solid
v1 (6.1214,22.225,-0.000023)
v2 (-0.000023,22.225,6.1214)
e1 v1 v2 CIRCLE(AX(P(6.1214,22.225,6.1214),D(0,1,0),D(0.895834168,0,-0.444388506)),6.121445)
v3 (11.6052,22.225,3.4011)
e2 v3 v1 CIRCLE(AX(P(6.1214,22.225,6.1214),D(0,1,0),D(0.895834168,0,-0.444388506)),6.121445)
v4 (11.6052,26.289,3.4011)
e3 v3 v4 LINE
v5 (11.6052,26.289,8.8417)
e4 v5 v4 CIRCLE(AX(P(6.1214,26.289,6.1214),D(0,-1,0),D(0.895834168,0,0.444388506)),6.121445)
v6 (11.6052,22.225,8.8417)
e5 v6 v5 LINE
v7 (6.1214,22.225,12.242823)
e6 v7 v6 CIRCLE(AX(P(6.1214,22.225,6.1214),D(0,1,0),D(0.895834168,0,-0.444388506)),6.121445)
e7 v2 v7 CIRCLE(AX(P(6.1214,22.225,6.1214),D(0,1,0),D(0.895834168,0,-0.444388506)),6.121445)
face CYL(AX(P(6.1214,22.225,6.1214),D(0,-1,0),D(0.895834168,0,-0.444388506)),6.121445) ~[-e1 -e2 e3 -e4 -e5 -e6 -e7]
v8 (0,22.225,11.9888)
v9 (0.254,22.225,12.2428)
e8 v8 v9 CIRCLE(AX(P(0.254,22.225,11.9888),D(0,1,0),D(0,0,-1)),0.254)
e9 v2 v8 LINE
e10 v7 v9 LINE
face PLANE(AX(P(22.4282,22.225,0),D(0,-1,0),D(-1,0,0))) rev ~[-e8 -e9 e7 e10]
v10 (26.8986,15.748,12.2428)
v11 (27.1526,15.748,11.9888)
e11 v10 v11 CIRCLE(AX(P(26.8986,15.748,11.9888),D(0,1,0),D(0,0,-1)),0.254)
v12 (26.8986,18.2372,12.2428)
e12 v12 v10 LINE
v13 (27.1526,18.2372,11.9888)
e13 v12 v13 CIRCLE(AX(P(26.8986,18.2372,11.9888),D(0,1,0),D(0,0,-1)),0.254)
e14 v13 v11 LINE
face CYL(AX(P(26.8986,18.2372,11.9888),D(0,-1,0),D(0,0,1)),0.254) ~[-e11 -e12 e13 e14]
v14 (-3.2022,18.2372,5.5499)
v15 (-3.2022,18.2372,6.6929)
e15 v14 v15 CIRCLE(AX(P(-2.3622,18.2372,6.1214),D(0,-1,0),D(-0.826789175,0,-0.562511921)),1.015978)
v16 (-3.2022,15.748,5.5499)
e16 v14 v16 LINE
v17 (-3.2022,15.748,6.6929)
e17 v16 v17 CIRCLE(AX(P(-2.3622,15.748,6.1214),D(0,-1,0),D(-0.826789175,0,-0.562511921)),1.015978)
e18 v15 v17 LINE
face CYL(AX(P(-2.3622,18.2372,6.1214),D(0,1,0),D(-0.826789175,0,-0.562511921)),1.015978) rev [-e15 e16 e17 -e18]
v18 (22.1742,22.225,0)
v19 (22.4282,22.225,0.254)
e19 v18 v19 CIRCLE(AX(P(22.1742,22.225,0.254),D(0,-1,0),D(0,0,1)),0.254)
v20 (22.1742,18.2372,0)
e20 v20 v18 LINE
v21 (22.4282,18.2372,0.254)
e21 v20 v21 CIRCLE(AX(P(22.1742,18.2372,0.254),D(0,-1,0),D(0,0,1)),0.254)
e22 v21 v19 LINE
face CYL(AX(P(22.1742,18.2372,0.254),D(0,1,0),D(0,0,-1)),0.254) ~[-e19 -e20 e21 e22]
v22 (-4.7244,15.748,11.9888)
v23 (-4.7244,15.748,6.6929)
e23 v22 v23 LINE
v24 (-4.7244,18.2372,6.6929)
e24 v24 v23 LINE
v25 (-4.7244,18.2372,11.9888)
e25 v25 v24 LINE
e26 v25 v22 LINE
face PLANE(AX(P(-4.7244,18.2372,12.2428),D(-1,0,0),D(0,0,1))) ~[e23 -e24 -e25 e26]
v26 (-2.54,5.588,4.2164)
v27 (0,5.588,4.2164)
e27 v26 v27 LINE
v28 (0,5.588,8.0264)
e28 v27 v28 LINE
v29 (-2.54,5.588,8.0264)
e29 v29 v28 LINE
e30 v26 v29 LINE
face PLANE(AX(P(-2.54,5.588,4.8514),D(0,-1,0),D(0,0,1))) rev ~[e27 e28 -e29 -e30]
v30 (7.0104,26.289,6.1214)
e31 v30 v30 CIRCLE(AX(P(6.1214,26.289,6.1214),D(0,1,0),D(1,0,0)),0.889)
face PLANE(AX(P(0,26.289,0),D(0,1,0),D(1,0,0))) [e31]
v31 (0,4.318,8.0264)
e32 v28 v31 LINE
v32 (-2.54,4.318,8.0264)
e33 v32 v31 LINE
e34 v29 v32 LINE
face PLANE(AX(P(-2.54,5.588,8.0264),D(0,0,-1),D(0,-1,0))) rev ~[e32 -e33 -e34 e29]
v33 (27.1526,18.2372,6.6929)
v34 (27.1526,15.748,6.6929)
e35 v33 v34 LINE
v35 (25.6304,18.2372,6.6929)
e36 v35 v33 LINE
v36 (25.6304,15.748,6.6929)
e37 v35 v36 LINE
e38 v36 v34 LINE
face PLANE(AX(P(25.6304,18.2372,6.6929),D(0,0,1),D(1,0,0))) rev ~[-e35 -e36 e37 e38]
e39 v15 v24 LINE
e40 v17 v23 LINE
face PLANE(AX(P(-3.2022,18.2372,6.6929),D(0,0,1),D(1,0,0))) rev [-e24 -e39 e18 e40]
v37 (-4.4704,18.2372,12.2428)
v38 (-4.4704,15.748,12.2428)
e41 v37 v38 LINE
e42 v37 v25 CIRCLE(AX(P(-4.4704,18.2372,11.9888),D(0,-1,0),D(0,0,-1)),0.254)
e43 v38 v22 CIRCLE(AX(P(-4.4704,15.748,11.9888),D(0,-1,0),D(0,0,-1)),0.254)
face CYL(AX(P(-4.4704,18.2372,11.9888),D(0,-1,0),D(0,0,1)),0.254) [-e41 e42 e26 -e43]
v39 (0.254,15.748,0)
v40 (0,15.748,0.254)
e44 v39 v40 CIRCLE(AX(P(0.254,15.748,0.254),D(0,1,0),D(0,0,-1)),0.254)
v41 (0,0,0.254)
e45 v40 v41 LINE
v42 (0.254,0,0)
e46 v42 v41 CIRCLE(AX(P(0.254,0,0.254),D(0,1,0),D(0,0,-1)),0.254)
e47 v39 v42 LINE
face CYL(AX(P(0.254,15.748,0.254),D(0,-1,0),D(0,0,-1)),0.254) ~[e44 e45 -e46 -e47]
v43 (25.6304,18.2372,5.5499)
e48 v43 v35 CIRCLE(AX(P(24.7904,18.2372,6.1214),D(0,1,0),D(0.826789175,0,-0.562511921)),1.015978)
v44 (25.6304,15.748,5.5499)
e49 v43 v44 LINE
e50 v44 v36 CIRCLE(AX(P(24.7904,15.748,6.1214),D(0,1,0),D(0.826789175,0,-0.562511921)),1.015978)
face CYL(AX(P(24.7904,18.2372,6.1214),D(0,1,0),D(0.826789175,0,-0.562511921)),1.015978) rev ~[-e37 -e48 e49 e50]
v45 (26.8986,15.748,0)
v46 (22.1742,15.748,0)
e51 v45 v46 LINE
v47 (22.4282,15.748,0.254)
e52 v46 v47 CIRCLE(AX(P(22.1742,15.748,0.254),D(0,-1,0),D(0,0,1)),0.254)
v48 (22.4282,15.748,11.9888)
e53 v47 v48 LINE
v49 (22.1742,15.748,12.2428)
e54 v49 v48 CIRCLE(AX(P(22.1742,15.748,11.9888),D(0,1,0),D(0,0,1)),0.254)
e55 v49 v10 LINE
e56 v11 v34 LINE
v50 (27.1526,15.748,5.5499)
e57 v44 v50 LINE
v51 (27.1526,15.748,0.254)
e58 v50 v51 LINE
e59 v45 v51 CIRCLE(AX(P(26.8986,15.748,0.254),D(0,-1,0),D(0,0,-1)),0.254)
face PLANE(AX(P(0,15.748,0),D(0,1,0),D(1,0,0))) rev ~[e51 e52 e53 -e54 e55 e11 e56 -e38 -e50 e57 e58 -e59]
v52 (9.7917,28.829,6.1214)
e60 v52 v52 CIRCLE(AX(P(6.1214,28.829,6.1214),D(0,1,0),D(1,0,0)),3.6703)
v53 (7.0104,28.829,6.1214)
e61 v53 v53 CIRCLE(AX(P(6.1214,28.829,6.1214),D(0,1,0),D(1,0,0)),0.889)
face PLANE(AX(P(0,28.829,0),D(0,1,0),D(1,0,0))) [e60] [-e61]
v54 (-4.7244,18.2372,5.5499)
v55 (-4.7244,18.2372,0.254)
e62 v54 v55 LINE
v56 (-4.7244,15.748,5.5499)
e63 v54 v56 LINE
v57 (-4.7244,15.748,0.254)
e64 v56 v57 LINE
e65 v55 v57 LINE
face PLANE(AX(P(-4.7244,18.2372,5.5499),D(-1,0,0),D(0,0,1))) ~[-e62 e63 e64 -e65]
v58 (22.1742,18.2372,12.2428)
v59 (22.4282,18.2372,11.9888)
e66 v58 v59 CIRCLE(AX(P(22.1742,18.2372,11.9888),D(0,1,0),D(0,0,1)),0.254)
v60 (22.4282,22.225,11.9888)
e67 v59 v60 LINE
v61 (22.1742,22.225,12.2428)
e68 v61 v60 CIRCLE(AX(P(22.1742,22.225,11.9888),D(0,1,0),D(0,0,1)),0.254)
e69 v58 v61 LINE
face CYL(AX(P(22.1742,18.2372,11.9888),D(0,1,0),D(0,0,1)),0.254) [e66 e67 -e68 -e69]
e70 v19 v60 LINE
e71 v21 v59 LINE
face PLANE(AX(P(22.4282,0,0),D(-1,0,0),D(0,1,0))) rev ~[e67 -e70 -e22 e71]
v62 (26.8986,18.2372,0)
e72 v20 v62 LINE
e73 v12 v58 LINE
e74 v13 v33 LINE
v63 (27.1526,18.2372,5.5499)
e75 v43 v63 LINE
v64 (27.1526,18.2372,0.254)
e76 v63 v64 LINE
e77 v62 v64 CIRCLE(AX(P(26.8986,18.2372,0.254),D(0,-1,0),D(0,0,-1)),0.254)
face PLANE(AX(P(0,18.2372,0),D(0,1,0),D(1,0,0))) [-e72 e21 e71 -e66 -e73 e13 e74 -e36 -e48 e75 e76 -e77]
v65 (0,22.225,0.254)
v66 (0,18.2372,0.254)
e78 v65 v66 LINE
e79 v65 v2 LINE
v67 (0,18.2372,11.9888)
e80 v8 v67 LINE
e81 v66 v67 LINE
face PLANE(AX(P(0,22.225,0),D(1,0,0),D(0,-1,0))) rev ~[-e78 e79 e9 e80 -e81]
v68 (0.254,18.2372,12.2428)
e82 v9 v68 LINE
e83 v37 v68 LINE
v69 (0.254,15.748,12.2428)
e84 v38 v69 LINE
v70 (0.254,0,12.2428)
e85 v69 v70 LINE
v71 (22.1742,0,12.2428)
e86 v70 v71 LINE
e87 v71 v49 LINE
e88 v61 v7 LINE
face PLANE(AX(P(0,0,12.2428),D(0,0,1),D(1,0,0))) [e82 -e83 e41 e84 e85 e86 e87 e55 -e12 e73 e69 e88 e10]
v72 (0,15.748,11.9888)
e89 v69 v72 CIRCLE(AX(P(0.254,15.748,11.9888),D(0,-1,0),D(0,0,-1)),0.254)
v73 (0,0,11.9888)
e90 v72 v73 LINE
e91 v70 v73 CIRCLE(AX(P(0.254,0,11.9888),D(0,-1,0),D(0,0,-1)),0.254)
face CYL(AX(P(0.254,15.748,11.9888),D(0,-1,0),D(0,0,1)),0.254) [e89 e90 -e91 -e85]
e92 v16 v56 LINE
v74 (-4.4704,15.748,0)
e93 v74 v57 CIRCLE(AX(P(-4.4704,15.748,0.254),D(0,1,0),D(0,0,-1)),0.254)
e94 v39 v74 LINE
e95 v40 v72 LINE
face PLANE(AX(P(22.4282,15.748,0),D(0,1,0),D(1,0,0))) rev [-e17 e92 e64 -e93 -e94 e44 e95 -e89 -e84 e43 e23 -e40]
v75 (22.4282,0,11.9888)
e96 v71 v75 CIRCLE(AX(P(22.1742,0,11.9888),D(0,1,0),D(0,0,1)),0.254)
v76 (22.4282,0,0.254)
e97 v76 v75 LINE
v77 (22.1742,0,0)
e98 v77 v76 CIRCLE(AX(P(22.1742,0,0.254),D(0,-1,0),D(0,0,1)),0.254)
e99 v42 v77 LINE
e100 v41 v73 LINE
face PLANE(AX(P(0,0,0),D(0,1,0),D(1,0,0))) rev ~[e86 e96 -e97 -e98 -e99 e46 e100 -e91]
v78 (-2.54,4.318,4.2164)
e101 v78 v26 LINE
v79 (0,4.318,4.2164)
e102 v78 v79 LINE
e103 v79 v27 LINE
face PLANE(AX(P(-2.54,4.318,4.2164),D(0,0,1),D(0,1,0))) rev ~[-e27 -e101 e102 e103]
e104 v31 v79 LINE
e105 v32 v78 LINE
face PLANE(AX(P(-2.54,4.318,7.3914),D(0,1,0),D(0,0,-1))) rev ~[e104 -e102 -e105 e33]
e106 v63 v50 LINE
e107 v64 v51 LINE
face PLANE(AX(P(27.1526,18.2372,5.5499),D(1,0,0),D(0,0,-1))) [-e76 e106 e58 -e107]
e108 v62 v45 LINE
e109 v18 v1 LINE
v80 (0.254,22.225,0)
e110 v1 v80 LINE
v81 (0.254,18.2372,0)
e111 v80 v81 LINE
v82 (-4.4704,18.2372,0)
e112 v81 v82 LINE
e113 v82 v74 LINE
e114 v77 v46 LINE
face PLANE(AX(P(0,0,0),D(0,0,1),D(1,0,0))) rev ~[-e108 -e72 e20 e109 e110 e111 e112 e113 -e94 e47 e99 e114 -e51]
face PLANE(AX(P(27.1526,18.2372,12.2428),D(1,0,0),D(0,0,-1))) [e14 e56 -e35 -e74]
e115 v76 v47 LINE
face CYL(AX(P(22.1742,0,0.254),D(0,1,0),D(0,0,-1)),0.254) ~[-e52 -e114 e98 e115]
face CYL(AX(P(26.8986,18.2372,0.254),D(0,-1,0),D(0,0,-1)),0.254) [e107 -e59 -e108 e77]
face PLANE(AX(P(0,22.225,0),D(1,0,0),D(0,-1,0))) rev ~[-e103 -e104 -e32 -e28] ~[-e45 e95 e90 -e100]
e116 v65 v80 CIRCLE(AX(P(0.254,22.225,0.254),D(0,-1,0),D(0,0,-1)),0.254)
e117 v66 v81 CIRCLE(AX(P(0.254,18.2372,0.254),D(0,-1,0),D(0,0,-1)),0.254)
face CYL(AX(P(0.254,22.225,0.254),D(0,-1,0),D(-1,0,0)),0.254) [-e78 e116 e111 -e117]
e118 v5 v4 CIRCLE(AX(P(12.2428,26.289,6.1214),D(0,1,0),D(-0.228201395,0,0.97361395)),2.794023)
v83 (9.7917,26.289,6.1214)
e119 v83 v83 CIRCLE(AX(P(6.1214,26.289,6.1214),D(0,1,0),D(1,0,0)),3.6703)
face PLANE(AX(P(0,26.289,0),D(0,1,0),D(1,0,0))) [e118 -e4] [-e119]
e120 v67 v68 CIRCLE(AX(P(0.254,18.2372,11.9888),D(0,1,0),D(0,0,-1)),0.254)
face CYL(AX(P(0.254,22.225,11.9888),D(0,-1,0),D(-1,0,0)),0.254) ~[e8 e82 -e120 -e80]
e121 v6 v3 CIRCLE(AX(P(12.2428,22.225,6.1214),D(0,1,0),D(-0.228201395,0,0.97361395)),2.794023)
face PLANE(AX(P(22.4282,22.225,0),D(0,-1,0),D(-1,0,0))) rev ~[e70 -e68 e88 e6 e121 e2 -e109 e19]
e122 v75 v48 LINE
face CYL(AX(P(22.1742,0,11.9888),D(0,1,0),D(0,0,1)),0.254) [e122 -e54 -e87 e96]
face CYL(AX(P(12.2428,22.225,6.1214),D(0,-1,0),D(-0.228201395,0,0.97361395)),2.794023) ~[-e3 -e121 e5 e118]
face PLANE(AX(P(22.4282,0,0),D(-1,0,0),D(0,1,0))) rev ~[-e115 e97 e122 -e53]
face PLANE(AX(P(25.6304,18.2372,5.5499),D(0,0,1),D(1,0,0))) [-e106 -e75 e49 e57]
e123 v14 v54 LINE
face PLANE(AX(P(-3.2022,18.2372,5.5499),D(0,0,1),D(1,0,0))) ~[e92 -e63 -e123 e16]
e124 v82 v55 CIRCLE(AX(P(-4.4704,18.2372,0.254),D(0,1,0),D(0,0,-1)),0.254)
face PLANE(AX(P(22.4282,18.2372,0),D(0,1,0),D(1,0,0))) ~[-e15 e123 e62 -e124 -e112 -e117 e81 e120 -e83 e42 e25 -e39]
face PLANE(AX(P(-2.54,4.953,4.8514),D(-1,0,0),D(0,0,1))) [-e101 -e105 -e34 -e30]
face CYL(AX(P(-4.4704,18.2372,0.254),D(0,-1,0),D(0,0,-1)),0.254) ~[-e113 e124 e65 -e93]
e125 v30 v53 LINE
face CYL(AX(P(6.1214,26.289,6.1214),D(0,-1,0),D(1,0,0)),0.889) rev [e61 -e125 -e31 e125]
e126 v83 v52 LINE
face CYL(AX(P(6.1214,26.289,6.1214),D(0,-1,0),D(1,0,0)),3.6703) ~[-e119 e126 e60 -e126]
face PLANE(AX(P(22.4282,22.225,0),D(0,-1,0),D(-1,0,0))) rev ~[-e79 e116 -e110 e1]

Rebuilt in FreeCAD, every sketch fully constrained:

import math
import FreeCAD as App
import Part
import Sketcher
Q = App.Units.Quantity


def edges_at(feature, points):
    """Names of the edges that pass closest to the given points."""
    edges = feature.Shape.Edges
    near = lambda p: min(range(len(edges)), key=lambda i: edges[i].distToShape(Part.Vertex(*p))[0])
    return sorted({f"Edge{near(p) + 1}" for p in points})


def add_polygon(sketch, points):
    """Adds a closed chain of lines whose ends are joined by coincident constraints."""
    first, n = sketch.GeometryCount, len(points)
    for a, b in zip(points, points[1:] + points[:1]):
        sketch.addGeometry(Part.LineSegment(App.Vector(*a, 0), App.Vector(*b, 0)), False)
    for i in range(n):
        sketch.addConstraint(Sketcher.Constraint("Coincident", first + i, 2, first + (i + 1) % n, 1))

doc = App.newDocument("Part")
body = doc.addObject("PartDesign::Body", "Body")

sketch1 = body.newObject("Sketcher::SketchObject", "Sketch")
sketch1.AttachmentSupport = (doc.getObject("XY_Plane"), [""])
sketch1.MapMode = "FlatFace"
add_polygon(sketch1, [(0, 22.225), (0, 0), (22.4282, 0), (22.4282, 22.225)])
sketch1.addConstraint([
    Sketcher.Constraint("Vertical", 0),
    Sketcher.Constraint("Horizontal", 1),
    Sketcher.Constraint("Vertical", 2),
    Sketcher.Constraint("Horizontal", 3),
    Sketcher.Constraint("Coincident", 0, 2, -1, 1),
    Sketcher.Constraint("DistanceX", 1, 1, 1, 2, Q("0.883 in")),
    Sketcher.Constraint("DistanceY", 0, 2, 0, 1, Q("0.875 in")),
])
pad1 = body.newObject("PartDesign::Pad", "Pad")
pad1.Profile = sketch1
pad1.Length = Q("0.482 in")

sketch2 = body.newObject("Sketcher::SketchObject", "Sketch001")
sketch2.AttachmentSupport = (doc.getObject("XZ_Plane"), [""])
sketch2.MapMode = "FlatFace"
sketch2.AttachmentOffset = App.Placement(App.Vector(0, 0, -0.718 * 25.4), App.Rotation())
sketch2.addGeometry([
    Part.LineSegment(App.Vector(22.4282, 0, 0), App.Vector(22.4282, 12.2428, 0)),
    Part.LineSegment(App.Vector(22.4282, 12.2428, 0), App.Vector(27.1526, 12.2428, 0)),
    Part.LineSegment(App.Vector(27.1526, 12.2428, 0), App.Vector(27.1526, 6.6929, 0)),
    Part.LineSegment(App.Vector(27.1526, 6.6929, 0), App.Vector(25.6304, 6.6929, 0)),
    Part.ArcOfCircle(Part.Circle(App.Vector(24.7904, 6.1214, 0), App.Vector(0, 0, 1), 1.015978), math.radians(34.229692), math.radians(325.770308)),
    Part.LineSegment(App.Vector(25.6304, 5.5499, 0), App.Vector(27.1526, 5.5499, 0)),
    Part.LineSegment(App.Vector(27.1526, 5.5499, 0), App.Vector(27.1526, 0, 0)),
    Part.LineSegment(App.Vector(27.1526, 0, 0), App.Vector(22.4282, 0, 0)),
], False)
sketch2.addConstraint([
    Sketcher.Constraint("Coincident", 0, 2, 1, 1),
    Sketcher.Constraint("Coincident", 1, 2, 2, 1),
    Sketcher.Constraint("Coincident", 2, 2, 3, 1),
    Sketcher.Constraint("Coincident", 3, 2, 4, 1),
    Sketcher.Constraint("Coincident", 4, 2, 5, 1),
    Sketcher.Constraint("Coincident", 5, 2, 6, 1),
    Sketcher.Constraint("Coincident", 6, 2, 7, 1),
    Sketcher.Constraint("Coincident", 7, 2, 0, 1),
    Sketcher.Constraint("Vertical", 0),
    Sketcher.Constraint("Horizontal", 1),
    Sketcher.Constraint("Vertical", 2),
    Sketcher.Constraint("Horizontal", 3),
    Sketcher.Constraint("Horizontal", 5),
    Sketcher.Constraint("Vertical", 6),
    Sketcher.Constraint("Horizontal", 7),
    Sketcher.Constraint("PointOnObject", 6, 2, -1),
    Sketcher.Constraint("Vertical", 3, 2, 4, 2),
    Sketcher.Constraint("Vertical", 2, 2, 5, 2),
    Sketcher.Constraint("Equal", 2, 6),
    Sketcher.Constraint("Radius", 4, Q("0.04 in")),
    Sketcher.Constraint("DistanceX", 1, 1, 1, 2, Q("0.186 in")),
    Sketcher.Constraint("DistanceY", 4, 2, 3, 2, Q("0.045 in")),
    Sketcher.Constraint("DistanceY", 0, 1, 0, 2, Q("0.482 in")),
    Sketcher.Constraint("DistanceX", -1, 1, 4, 3, Q("0.976 in")),
    Sketcher.Constraint("DistanceX", -1, 1, 0, 2, Q("0.883 in")),
])
pad2 = body.newObject("PartDesign::Pad", "Pad001")
pad2.Profile = sketch2
pad2.Length = Q("0.098 in")
doc.recompute()

datumplane = body.newObject("PartDesign::Plane", "DatumPlane")
datumplane.AttachmentSupport = (doc.getObject("YZ_Plane"), [""])
datumplane.MapMode = "FlatFace"
datumplane.AttachmentOffset = App.Placement(App.Vector(0, 0, 0.4415 * 25.4), App.Rotation())
mirrored = body.newObject("PartDesign::Mirrored", "Mirrored")
mirrored.Originals = [pad2]
mirrored.MirrorPlane = (datumplane, [""])
body.Tip = mirrored

sketch3 = body.newObject("Sketcher::SketchObject", "Sketch002")
sketch3.AttachmentSupport = (doc.getObject("XZ_Plane"), [""])
sketch3.MapMode = "FlatFace"
sketch3.AttachmentOffset = App.Placement(App.Vector(0, 0, -0.875 * 25.4), App.Rotation())
sketch3.addGeometry([
    Part.ArcOfCircle(Part.Circle(App.Vector(12.2428, 6.1214, 0), App.Vector(0, 0, 1), 2.794023), math.radians(-103.191203), math.radians(103.191203)),
    Part.ArcOfCircle(Part.Circle(App.Vector(6.1214, 6.1214, 0), App.Vector(0, 0, 1), 6.121445), math.radians(26.384222), math.radians(333.615778)),
], False)
sketch3.addConstraint([
    Sketcher.Constraint("Coincident", 0, 1, 1, 2),
    Sketcher.Constraint("Coincident", 1, 1, 0, 2),
    Sketcher.Constraint("Horizontal", 0, 3, 1, 3),
    Sketcher.Constraint("Radius", 0, Q("0.11 in")),
    Sketcher.Constraint("Radius", 1, Q("0.241 in")),
    Sketcher.Constraint("DistanceX", -1, 1, 0, 3, Q("0.482 in")),
    Sketcher.Constraint("DistanceY", -1, 1, 0, 3, Q("0.241 in")),
    Sketcher.Constraint("DistanceX", -1, 1, 1, 3, Q("0.241 in")),
])
pad3 = body.newObject("PartDesign::Pad", "Pad002")
pad3.Profile = sketch3
pad3.Length = Q("0.16 in")
pad3.Reversed = True

sketch4 = body.newObject("Sketcher::SketchObject", "Sketch003")
sketch4.AttachmentSupport = (doc.getObject("XZ_Plane"), [""])
sketch4.MapMode = "FlatFace"
sketch4.AttachmentOffset = App.Placement(App.Vector(0, 0, -1.035 * 25.4), App.Rotation())
sketch4.addGeometry([
    Part.Circle(App.Vector(6.1214, 6.1214, 0), App.Vector(0, 0, 1), 3.6703),
    Part.Circle(App.Vector(6.1214, 6.1214, 0), App.Vector(0, 0, 1), 0.889),
], False)
sketch4.addConstraint([
    Sketcher.Constraint("Coincident", 1, 3, 0, 3),
    Sketcher.Constraint("Diameter", 1, Q("0.07 in")),
    Sketcher.Constraint("Diameter", 0, Q("0.289 in")),
    Sketcher.Constraint("DistanceX", -1, 1, 0, 3, Q("0.241 in")),
    Sketcher.Constraint("DistanceY", -1, 1, 0, 3, Q("0.241 in")),
])
pad4 = body.newObject("PartDesign::Pad", "Pad003")
pad4.Profile = sketch4
pad4.Length = Q("0.1 in")
pad4.Reversed = True

sketch5 = body.newObject("Sketcher::SketchObject", "Sketch004")
sketch5.AttachmentSupport = (doc.getObject("YZ_Plane"), [""])
sketch5.MapMode = "FlatFace"
sketch5.addGeometry([
    Part.Circle(App.Vector(4.953, 4.8514, 0), App.Vector(0, 0, 1), 0.635),
    Part.Circle(App.Vector(4.953, 7.3914, 0), App.Vector(0, 0, 1), 0.635),
    Part.ArcOfCircle(Part.Circle(App.Vector(4.953, 6.1214, 0), App.Vector(0, 0, 1), 0.635), math.radians(-90), math.radians(90)),
    Part.ArcOfCircle(Part.Circle(App.Vector(4.953, 6.1214, 0), App.Vector(0, 0, 1), 0.635), math.radians(90), math.radians(270)),
], False)
sketch5.addConstraint([
    Sketcher.Constraint("Tangent", 2, 1, 3, 2),
    Sketcher.Constraint("Coincident", 3, 1, 2, 2),
    Sketcher.Constraint("Equal", 0, 1),
    Sketcher.Constraint("Equal", 1, 2),
    Sketcher.Constraint("Vertical", 0, 3, 1, 3),
    Sketcher.Constraint("Vertical", 1, 3, 2, 3),
    Sketcher.Constraint("Vertical", 3, 3, 2, 1),
    Sketcher.Constraint("Vertical", 2, 1, 3, 1),
    Sketcher.Constraint("Diameter", 0, Q("0.05 in")),
    Sketcher.Constraint("DistanceY", 2, 3, 1, 3, Q("0.05 in")),
    Sketcher.Constraint("DistanceY", 0, 3, 2, 3, Q("0.05 in")),
    Sketcher.Constraint("DistanceX", -1, 1, 0, 3, Q("0.195 in")),
    Sketcher.Constraint("DistanceY", -1, 1, 0, 3, Q("0.191 in")),
])
pad5 = body.newObject("PartDesign::Pad", "Pad004")
pad5.Profile = sketch5
pad5.Length = Q("0.1 in")
pad5.Reversed = True
doc.recompute()

fillet = body.newObject("PartDesign::Fillet", "Fillet")
fillet.Base = (pad5, edges_at(pad5, [
    (22.428, 7.874, 0),
    (22.428, 20.231, 0),
    (22.428, 20.231, 12.243),
    (22.428, 7.874, 12.243),
    (27.153, 16.993, 12.243),
    (27.153, 16.993, 0),
    (-4.724, 16.993, 0),
    (-4.724, 16.993, 12.243),
    (0, 7.874, 12.243),
    (0, 7.874, 0),
    (0, 20.231, 0),
    (0, 20.231, 12.243),
]))
fillet.Radius = Q("0.01 in")

sketch6 = body.newObject("Sketcher::SketchObject", "Sketch005")
sketch6.AttachmentSupport = (doc.getObject("YZ_Plane"), [""])
sketch6.MapMode = "FlatFace"
sketch6.AttachmentOffset = App.Placement(App.Vector(0, 0, -0.1 * 25.4), App.Rotation())
add_polygon(sketch6, [(4.318, 8.0264), (5.588, 8.0264), (5.588, 4.2164), (4.318, 4.2164)])
sketch6.addConstraint([
    Sketcher.Constraint("Horizontal", 0),
    Sketcher.Constraint("Vertical", 1),
    Sketcher.Constraint("Horizontal", 2),
    Sketcher.Constraint("Vertical", 3),
    Sketcher.Constraint("DistanceX", 0, 1, 0, 2, Q("0.05 in")),
    Sketcher.Constraint("DistanceY", 1, 2, 1, 1, Q("0.15 in")),
    Sketcher.Constraint("DistanceX", -1, 1, 0, 2, Q("0.22 in")),
    Sketcher.Constraint("DistanceY", -1, 1, 0, 2, Q("0.316 in")),
])
pad6 = body.newObject("PartDesign::Pad", "Pad005")
pad6.Profile = sketch6
pad6.Length = Q("0.1 in")

doc.recompute()
